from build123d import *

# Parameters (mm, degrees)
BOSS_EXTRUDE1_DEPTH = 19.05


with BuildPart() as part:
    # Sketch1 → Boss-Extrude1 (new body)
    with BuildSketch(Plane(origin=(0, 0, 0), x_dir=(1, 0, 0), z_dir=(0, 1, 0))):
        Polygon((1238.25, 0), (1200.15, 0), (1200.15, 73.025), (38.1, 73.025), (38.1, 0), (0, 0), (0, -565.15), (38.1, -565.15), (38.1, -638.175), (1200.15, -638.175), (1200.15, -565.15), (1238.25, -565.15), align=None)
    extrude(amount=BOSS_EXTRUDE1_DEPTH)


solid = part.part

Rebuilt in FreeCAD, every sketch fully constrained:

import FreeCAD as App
import Part
import Sketcher
from FreeCAD import Vector
Q = App.Units.Quantity


def add_polygon(sketch, points):
    """Adds a closed chain of lines whose ends are joined by coincident constraints."""
    first, n = sketch.GeometryCount, len(points)
    for a, b in zip(points, points[1:] + points[:1]):
        sketch.addGeometry(Part.LineSegment(App.Vector(*a, 0), App.Vector(*b, 0)), False)
    for i in range(n):
        sketch.addConstraint(Sketcher.Constraint("Coincident", first + i, 2, first + (i + 1) % n, 1))

doc = App.newDocument("Part")
body = doc.addObject("PartDesign::Body", "Body")

# Sketch on XZ plane
sketch1 = body.newObject("Sketcher::SketchObject", "Sketch")
sketch1.AttachmentSupport = (doc.getObject("XZ_Plane"), [""])
sketch1.MapMode = "FlatFace"
add_polygon(sketch1, [(1238, 0), (1200, 0), (1200, -73), (38, -73), (38, 0), (0, 0), (0, 565), (38, 565), (38, 638), (1200, 638), (1200, 565), (1238, 565)])  # lines 0-11
sketch1.addConstraint(Sketcher.Constraint("Horizontal", 0))
sketch1.addConstraint(Sketcher.Constraint("Vertical", 1))
sketch1.addConstraint(Sketcher.Constraint("Horizontal", 2))
sketch1.addConstraint(Sketcher.Constraint("Vertical", 3))
sketch1.addConstraint(Sketcher.Constraint("Horizontal", 4))
sketch1.addConstraint(Sketcher.Constraint("Vertical", 5))
sketch1.addConstraint(Sketcher.Constraint("Horizontal", 6))
sketch1.addConstraint(Sketcher.Constraint("Vertical", 7))
sketch1.addConstraint(Sketcher.Constraint("Horizontal", 8))
sketch1.addConstraint(Sketcher.Constraint("Vertical", 9))
sketch1.addConstraint(Sketcher.Constraint("Horizontal", 10))
sketch1.addConstraint(Sketcher.Constraint("Vertical", 11))
sketch1.addConstraint(Sketcher.Constraint("Coincident", 4, 2, -1, 1))
sketch1.addConstraint(Sketcher.Constraint("PointOnObject", 0, 2, -1))
sketch1.addConstraint(Sketcher.Constraint("Horizontal", 6, 2, 9, 2))
sketch1.addConstraint(Sketcher.Constraint("Vertical", 3, 2, 6, 2))
sketch1.addConstraint(Sketcher.Constraint("Vertical", 1, 2, 8, 2))
sketch1.addConstraint(Sketcher.Constraint("Equal", 0, 4))
sketch1.addConstraint(Sketcher.Constraint("Equal", 3, 7))
sketch1.addConstraint(Sketcher.Constraint("DistanceX", 0, 2, 0, 1, Q("1.5 in")))
sketch1.addConstraint(Sketcher.Constraint("DistanceY", 2, 2, 7, 2, Q("28 in")))
sketch1.addConstraint(Sketcher.Constraint("DistanceX", 2, 2, 2, 1, Q("45.75 in")))
sketch1.addConstraint(Sketcher.Constraint("DistanceY", 5, 1, 5, 2, Q("22.25 in")))
pad1 = body.newObject("PartDesign::Pad", "Pad")
pad1.Profile = sketch1
pad1.Length = Q("0.75 in")
pad1.Reversed = True

doc.recompute()
